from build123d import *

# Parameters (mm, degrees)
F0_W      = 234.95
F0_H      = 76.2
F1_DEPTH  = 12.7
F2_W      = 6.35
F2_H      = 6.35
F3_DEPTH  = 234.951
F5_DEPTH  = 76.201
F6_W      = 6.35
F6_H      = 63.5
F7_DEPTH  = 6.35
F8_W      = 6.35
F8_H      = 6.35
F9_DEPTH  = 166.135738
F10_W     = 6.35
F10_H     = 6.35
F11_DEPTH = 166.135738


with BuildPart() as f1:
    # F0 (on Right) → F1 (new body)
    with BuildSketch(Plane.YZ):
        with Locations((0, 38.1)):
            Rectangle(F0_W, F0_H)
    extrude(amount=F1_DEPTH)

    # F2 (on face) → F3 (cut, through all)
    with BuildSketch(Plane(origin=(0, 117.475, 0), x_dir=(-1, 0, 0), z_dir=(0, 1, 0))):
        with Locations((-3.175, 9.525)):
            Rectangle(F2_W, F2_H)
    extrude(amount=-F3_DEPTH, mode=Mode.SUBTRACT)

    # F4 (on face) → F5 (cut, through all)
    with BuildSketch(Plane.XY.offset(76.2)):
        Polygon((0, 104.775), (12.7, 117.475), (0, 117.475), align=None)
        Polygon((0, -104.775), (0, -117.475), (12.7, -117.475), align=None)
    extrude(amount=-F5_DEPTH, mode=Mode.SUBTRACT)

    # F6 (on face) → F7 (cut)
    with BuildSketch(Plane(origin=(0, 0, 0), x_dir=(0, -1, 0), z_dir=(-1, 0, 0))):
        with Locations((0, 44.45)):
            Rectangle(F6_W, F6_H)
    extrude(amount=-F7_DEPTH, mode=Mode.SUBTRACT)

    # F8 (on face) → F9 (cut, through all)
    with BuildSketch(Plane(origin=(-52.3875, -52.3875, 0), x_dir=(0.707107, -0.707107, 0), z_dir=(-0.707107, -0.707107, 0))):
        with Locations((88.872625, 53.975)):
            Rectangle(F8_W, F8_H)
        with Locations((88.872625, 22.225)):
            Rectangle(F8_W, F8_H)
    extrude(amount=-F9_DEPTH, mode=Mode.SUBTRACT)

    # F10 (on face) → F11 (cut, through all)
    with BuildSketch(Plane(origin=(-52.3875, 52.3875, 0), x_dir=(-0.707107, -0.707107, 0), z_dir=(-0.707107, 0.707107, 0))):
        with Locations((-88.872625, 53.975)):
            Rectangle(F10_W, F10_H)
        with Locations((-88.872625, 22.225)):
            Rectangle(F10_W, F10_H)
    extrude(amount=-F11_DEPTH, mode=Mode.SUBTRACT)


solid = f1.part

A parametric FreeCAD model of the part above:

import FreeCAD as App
import Part
import Sketcher

V = App.Vector
Q = App.Units.Quantity

doc = App.newDocument("Part")
params = doc.addObject("Spreadsheet::Sheet", "Params")
for row, (alias, value) in enumerate([
    ("sketch1_height", "3 in"),
    ("sketch1_width", "9.25 in"),
    ("pad1_length", "0.5 in"),
    ("sketch2_width", "0.25 in"),
    ("sketch3_width", "0.5 in"),
    ("sketch4_height", "2.5 in"),
    ("sketch4_width", "0.25 in"),
    ("pocket3_length", "0.25 in"),
    ("sketch5_width", "0.25 in"),
    ("sketch6_width", "0.25 in"),
], start=1):
    params.set(f"A{row}", alias)
    params.set(f"B{row}", "=" + value)
    params.setAlias(f"B{row}", alias)

body = doc.addObject("PartDesign::Body", "Body")

sketch1 = body.newObject("Sketcher::SketchObject", "Sketch")
sketch1.AttachmentSupport = (doc.getObject("YZ_Plane"), [""])
sketch1.MapMode = "FlatFace"
sketch1.addGeometry(Part.LineSegment(V(-117, 76, 0), V(-117, 0, 0)), False)
sketch1.addGeometry(Part.LineSegment(V(-117, 0, 0), V(117, 0, 0)), False)
sketch1.addGeometry(Part.LineSegment(V(117, 0, 0), V(117, 76, 0)), False)
sketch1.addGeometry(Part.LineSegment(V(117, 76, 0), V(-117, 76, 0)), False)
sketch1.addConstraint(Sketcher.Constraint("Coincident", 0, 2, 1, 1))
sketch1.addConstraint(Sketcher.Constraint("Coincident", 1, 2, 2, 1))
sketch1.addConstraint(Sketcher.Constraint("Coincident", 2, 2, 3, 1))
sketch1.addConstraint(Sketcher.Constraint("Coincident", 3, 2, 0, 1))
sketch1.addConstraint(Sketcher.Constraint("Vertical", 0))
sketch1.addConstraint(Sketcher.Constraint("Horizontal", 1))
sketch1.addConstraint(Sketcher.Constraint("Vertical", 2))
sketch1.addConstraint(Sketcher.Constraint("Horizontal", 3))
sketch1.addConstraint(Sketcher.Constraint("Symmetric", 0, 2, 1, 2, -1, 1))
sketch1.addConstraint(Sketcher.Constraint("DistanceY", 0, 2, 0, 1, Q("3 in")))
sketch1.addConstraint(Sketcher.Constraint("DistanceX", 1, 1, 1, 2, Q("9.25 in")))
sketch1.setExpression("Constraints[9]", "Params.sketch1_height")
sketch1.setExpression("Constraints[10]", "Params.sketch1_width")
pad1 = body.newObject("PartDesign::Pad", "Pad")
pad1.Profile = sketch1
pad1.setExpression("Length", "Params.pad1_length")

sketch2 = body.newObject("Sketcher::SketchObject", "Sketch001")
sketch2.AttachmentSupport = (doc.getObject("XZ_Plane"), [""])
sketch2.MapMode = "FlatFace"
sketch2.AttachmentOffset = App.Placement(V(0, 0, -4.625 * 25.4), App.Rotation())
sketch2.addGeometry(Part.LineSegment(V(6, 13, 0), V(6, 6, 0)), False)
sketch2.addGeometry(Part.LineSegment(V(6, 6, 0), V(0, 6, 0)), False)
sketch2.addGeometry(Part.LineSegment(V(0, 6, 0), V(0, 13, 0)), False)
sketch2.addGeometry(Part.LineSegment(V(0, 13, 0), V(6, 13, 0)), False)
sketch2.addConstraint(Sketcher.Constraint("Coincident", 0, 2, 1, 1))
sketch2.addConstraint(Sketcher.Constraint("Coincident", 1, 2, 2, 1))
sketch2.addConstraint(Sketcher.Constraint("Coincident", 2, 2, 3, 1))
sketch2.addConstraint(Sketcher.Constraint("Coincident", 3, 2, 0, 1))
sketch2.addConstraint(Sketcher.Constraint("Vertical", 0))
sketch2.addConstraint(Sketcher.Constraint("Horizontal", 1))
sketch2.addConstraint(Sketcher.Constraint("Vertical", 2))
sketch2.addConstraint(Sketcher.Constraint("Horizontal", 3))
sketch2.addConstraint(Sketcher.Constraint("PointOnObject", 1, 2, -2))
sketch2.addConstraint(Sketcher.Constraint("Equal", 3, 0))
sketch2.addConstraint(Sketcher.Constraint("DistanceX", 1, 2, 1, 1, Q("0.25 in")))
sketch2.addConstraint(Sketcher.Constraint("DistanceY", -1, 1, 2, 2, Q("0.5 in")))
sketch2.setExpression("Constraints[10]", "Params.sketch2_width")
pocket1 = body.newObject("PartDesign::Pocket", "Pocket")
pocket1.Profile = sketch2
pocket1.Type = "ThroughAll"
pocket1.Reversed = True

sketch3 = body.newObject("Sketcher::SketchObject", "Sketch002")
sketch3.AttachmentSupport = (doc.getObject("XY_Plane"), [""])
sketch3.MapMode = "FlatFace"
sketch3.AttachmentOffset = App.Placement(V(0, 0, 3 * 25.4), App.Rotation())
sketch3.addGeometry(Part.LineSegment(V(0, 105, 0), V(13, 117, 0)), False)
sketch3.addGeometry(Part.LineSegment(V(13, 117, 0), V(0, 117, 0)), False)
sketch3.addGeometry(Part.LineSegment(V(0, 117, 0), V(0, 105, 0)), False)
sketch3.addGeometry(Part.LineSegment(V(0, -105, 0), V(0, -117, 0)), False)
sketch3.addGeometry(Part.LineSegment(V(0, -117, 0), V(13, -117, 0)), False)
sketch3.addGeometry(Part.LineSegment(V(13, -117, 0), V(0, -105, 0)), False)
sketch3.addConstraint(Sketcher.Constraint("Coincident", 0, 2, 1, 1))
sketch3.addConstraint(Sketcher.Constraint("Coincident", 1, 2, 2, 1))
sketch3.addConstraint(Sketcher.Constraint("Coincident", 2, 2, 0, 1))
sketch3.addConstraint(Sketcher.Constraint("Coincident", 3, 2, 4, 1))
sketch3.addConstraint(Sketcher.Constraint("Coincident", 4, 2, 5, 1))
sketch3.addConstraint(Sketcher.Constraint("Coincident", 5, 2, 3, 1))
sketch3.addConstraint(Sketcher.Constraint("Horizontal", 1))
sketch3.addConstraint(Sketcher.Constraint("Vertical", 2))
sketch3.addConstraint(Sketcher.Constraint("Vertical", 3))
sketch3.addConstraint(Sketcher.Constraint("Horizontal", 4))
sketch3.addConstraint(Sketcher.Constraint("Symmetric", 1, 2, 3, 2, -1, 1))
sketch3.addConstraint(Sketcher.Constraint("Symmetric", 2, 2, 5, 2, -1))
sketch3.addConstraint(Sketcher.Constraint("Perpendicular", 0, 5))
sketch3.addConstraint(Sketcher.Constraint("Vertical", 0, 2, 4, 2))
sketch3.addConstraint(Sketcher.Constraint("DistanceX", 1, 2, 1, 1, Q("0.5 in")))
sketch3.addConstraint(Sketcher.Constraint("DistanceY", 3, 2, 2, 2, Q("8.75 in")))
sketch3.setExpression("Constraints[14]", "Params.sketch3_width")
pocket2 = body.newObject("PartDesign::Pocket", "Pocket001")
pocket2.Profile = sketch3
pocket2.Type = "ThroughAll"

sketch4 = body.newObject("Sketcher::SketchObject", "Sketch003")
sketch4.AttachmentSupport = (doc.getObject("YZ_Plane"), [""])
sketch4.MapMode = "FlatFace"
sketch4.addGeometry(Part.LineSegment(V(3, 76, 0), V(3, 13, 0)), False)
sketch4.addGeometry(Part.LineSegment(V(3, 13, 0), V(-3, 13, 0)), False)
sketch4.addGeometry(Part.LineSegment(V(-3, 13, 0), V(-3, 76, 0)), False)
sketch4.addGeometry(Part.LineSegment(V(-3, 76, 0), V(3, 76, 0)), False)
sketch4.addConstraint(Sketcher.Constraint("Coincident", 0, 2, 1, 1))
sketch4.addConstraint(Sketcher.Constraint("Coincident", 1, 2, 2, 1))
sketch4.addConstraint(Sketcher.Constraint("Coincident", 2, 2, 3, 1))
sketch4.addConstraint(Sketcher.Constraint("Coincident", 3, 2, 0, 1))
sketch4.addConstraint(Sketcher.Constraint("Vertical", 0))
sketch4.addConstraint(Sketcher.Constraint("Horizontal", 1))
sketch4.addConstraint(Sketcher.Constraint("Vertical", 2))
sketch4.addConstraint(Sketcher.Constraint("Horizontal", 3))
sketch4.addConstraint(Sketcher.Constraint("DistanceY", 0, 2, 0, 1, Q("2.5 in")))
sketch4.addConstraint(Sketcher.Constraint("DistanceY", -1, 1, 2, 2, Q("3 in")))
sketch4.addConstraint(Sketcher.Constraint("DistanceX", 1, 2, 1, 1, Q("0.25 in")))
sketch4.addConstraint(Sketcher.Constraint("DistanceX", -1, 1, 0, 2, Q("0.125 in")))
sketch4.setExpression("Constraints[8]", "Params.sketch4_height")
sketch4.setExpression("Constraints[10]", "Params.sketch4_width")
pocket3 = body.newObject("PartDesign::Pocket", "Pocket002")
pocket3.Profile = sketch4
pocket3.setExpression("Length", "Params.pocket3_length")
pocket3.Reversed = True

sketch5 = body.newObject("Sketcher::SketchObject", "Sketch004")
sketch5.Placement = App.Placement(V(-52.3875, -52.3875, 0), App.Rotation(V(0.707106781, -0.707106781, 0), V(0, 0, 0.999999999), V(-0.707106781, -0.707106781, 0), "ZXY"))
sketch5.addGeometry(Part.LineSegment(V(86, 57, 0), V(86, 51, 0)), False)
sketch5.addGeometry(Part.LineSegment(V(86, 51, 0), V(92, 51, 0)), False)
sketch5.addGeometry(Part.LineSegment(V(92, 51, 0), V(92, 57, 0)), False)
sketch5.addGeometry(Part.LineSegment(V(92, 57, 0), V(86, 57, 0)), False)
sketch5.addGeometry(Part.LineSegment(V(86, 25, 0), V(86, 19, 0)), False)
sketch5.addGeometry(Part.LineSegment(V(86, 19, 0), V(92, 19, 0)), False)
sketch5.addGeometry(Part.LineSegment(V(92, 19, 0), V(92, 25, 0)), False)
sketch5.addGeometry(Part.LineSegment(V(92, 25, 0), V(86, 25, 0)), False)
sketch5.addConstraint(Sketcher.Constraint("Coincident", 0, 2, 1, 1))
sketch5.addConstraint(Sketcher.Constraint("Coincident", 1, 2, 2, 1))
sketch5.addConstraint(Sketcher.Constraint("Coincident", 2, 2, 3, 1))
sketch5.addConstraint(Sketcher.Constraint("Coincident", 3, 2, 0, 1))
sketch5.addConstraint(Sketcher.Constraint("Coincident", 4, 2, 5, 1))
sketch5.addConstraint(Sketcher.Constraint("Coincident", 5, 2, 6, 1))
sketch5.addConstraint(Sketcher.Constraint("Coincident", 6, 2, 7, 1))
sketch5.addConstraint(Sketcher.Constraint("Coincident", 7, 2, 4, 1))
sketch5.addConstraint(Sketcher.Constraint("Vertical", 0))
sketch5.addConstraint(Sketcher.Constraint("Horizontal", 1))
sketch5.addConstraint(Sketcher.Constraint("Vertical", 2))
sketch5.addConstraint(Sketcher.Constraint("Horizontal", 3))
sketch5.addConstraint(Sketcher.Constraint("Vertical", 4))
sketch5.addConstraint(Sketcher.Constraint("Horizontal", 5))
sketch5.addConstraint(Sketcher.Constraint("Vertical", 6))
sketch5.addConstraint(Sketcher.Constraint("Horizontal", 7))
sketch5.addConstraint(Sketcher.Constraint("Vertical", 3, 2, 4, 2))
sketch5.addConstraint(Sketcher.Constraint("Vertical", 2, 2, 5, 2))
sketch5.addConstraint(Sketcher.Constraint("Equal", 7, 0))
sketch5.addConstraint(Sketcher.Constraint("Equal", 2, 4))
sketch5.addConstraint(Sketcher.Constraint("DistanceY", -1, 1, 0, 2, Q("2 in")))
sketch5.addConstraint(Sketcher.Constraint("DistanceY", -1, 1, 6, 2, Q("1 in")))
sketch5.addConstraint(Sketcher.Constraint("DistanceX", 1, 1, 1, 2, Q("0.25 in")))
sketch5.addConstraint(Sketcher.Constraint("DistanceX", -1, 1, 0, 2, 85.697625))
sketch5.setExpression("Constraints[22]", "Params.sketch5_width")
pocket4 = body.newObject("PartDesign::Pocket", "Pocket003")
pocket4.Profile = sketch5
pocket4.Type = "ThroughAll"

sketch6 = body.newObject("Sketcher::SketchObject", "Sketch005")
sketch6.Placement = App.Placement(V(-52.3875, 52.3875, 0), App.Rotation(V(-0.707106781, -0.707106781, 0), V(0, 0, 0.999999999), V(-0.707106781, 0.707106781, 0), "ZXY"))
sketch6.addGeometry(Part.LineSegment(V(-92, 57, 0), V(-92, 51, 0)), False)
sketch6.addGeometry(Part.LineSegment(V(-92, 51, 0), V(-86, 51, 0)), False)
sketch6.addGeometry(Part.LineSegment(V(-86, 51, 0), V(-86, 57, 0)), False)
sketch6.addGeometry(Part.LineSegment(V(-86, 57, 0), V(-92, 57, 0)), False)
sketch6.addGeometry(Part.LineSegment(V(-92, 25, 0), V(-92, 19, 0)), False)
sketch6.addGeometry(Part.LineSegment(V(-92, 19, 0), V(-86, 19, 0)), False)
sketch6.addGeometry(Part.LineSegment(V(-86, 19, 0), V(-86, 25, 0)), False)
sketch6.addGeometry(Part.LineSegment(V(-86, 25, 0), V(-92, 25, 0)), False)
sketch6.addConstraint(Sketcher.Constraint("Coincident", 0, 2, 1, 1))
sketch6.addConstraint(Sketcher.Constraint("Coincident", 1, 2, 2, 1))
sketch6.addConstraint(Sketcher.Constraint("Coincident", 2, 2, 3, 1))
sketch6.addConstraint(Sketcher.Constraint("Coincident", 3, 2, 0, 1))
sketch6.addConstraint(Sketcher.Constraint("Coincident", 4, 2, 5, 1))
sketch6.addConstraint(Sketcher.Constraint("Coincident", 5, 2, 6, 1))
sketch6.addConstraint(Sketcher.Constraint("Coincident", 6, 2, 7, 1))
sketch6.addConstraint(Sketcher.Constraint("Coincident", 7, 2, 4, 1))
sketch6.addConstraint(Sketcher.Constraint("Vertical", 0))
sketch6.addConstraint(Sketcher.Constraint("Horizontal", 1))
sketch6.addConstraint(Sketcher.Constraint("Vertical", 2))
sketch6.addConstraint(Sketcher.Constraint("Horizontal", 3))
sketch6.addConstraint(Sketcher.Constraint("Vertical", 4))
sketch6.addConstraint(Sketcher.Constraint("Horizontal", 5))
sketch6.addConstraint(Sketcher.Constraint("Vertical", 6))
sketch6.addConstraint(Sketcher.Constraint("Horizontal", 7))
sketch6.addConstraint(Sketcher.Constraint("Vertical", 3, 2, 4, 2))
sketch6.addConstraint(Sketcher.Constraint("Vertical", 2, 2, 5, 2))
sketch6.addConstraint(Sketcher.Constraint("Equal", 7, 0))
sketch6.addConstraint(Sketcher.Constraint("Equal", 2, 4))
sketch6.addConstraint(Sketcher.Constraint("DistanceY", -1, 1, 0, 2, Q("2 in")))
sketch6.addConstraint(Sketcher.Constraint("DistanceY", -1, 1, 6, 2, Q("1 in")))
sketch6.addConstraint(Sketcher.Constraint("DistanceX", 1, 1, 1, 2, Q("0.25 in")))
sketch6.addConstraint(Sketcher.Constraint("DistanceX", 0, 2, -1, 1, 92.047625))
sketch6.setExpression("Constraints[22]", "Params.sketch6_width")
pocket5 = body.newObject("PartDesign::Pocket", "Pocket004")
pocket5.Profile = sketch6
pocket5.Type = "ThroughAll"

doc.recompute()
